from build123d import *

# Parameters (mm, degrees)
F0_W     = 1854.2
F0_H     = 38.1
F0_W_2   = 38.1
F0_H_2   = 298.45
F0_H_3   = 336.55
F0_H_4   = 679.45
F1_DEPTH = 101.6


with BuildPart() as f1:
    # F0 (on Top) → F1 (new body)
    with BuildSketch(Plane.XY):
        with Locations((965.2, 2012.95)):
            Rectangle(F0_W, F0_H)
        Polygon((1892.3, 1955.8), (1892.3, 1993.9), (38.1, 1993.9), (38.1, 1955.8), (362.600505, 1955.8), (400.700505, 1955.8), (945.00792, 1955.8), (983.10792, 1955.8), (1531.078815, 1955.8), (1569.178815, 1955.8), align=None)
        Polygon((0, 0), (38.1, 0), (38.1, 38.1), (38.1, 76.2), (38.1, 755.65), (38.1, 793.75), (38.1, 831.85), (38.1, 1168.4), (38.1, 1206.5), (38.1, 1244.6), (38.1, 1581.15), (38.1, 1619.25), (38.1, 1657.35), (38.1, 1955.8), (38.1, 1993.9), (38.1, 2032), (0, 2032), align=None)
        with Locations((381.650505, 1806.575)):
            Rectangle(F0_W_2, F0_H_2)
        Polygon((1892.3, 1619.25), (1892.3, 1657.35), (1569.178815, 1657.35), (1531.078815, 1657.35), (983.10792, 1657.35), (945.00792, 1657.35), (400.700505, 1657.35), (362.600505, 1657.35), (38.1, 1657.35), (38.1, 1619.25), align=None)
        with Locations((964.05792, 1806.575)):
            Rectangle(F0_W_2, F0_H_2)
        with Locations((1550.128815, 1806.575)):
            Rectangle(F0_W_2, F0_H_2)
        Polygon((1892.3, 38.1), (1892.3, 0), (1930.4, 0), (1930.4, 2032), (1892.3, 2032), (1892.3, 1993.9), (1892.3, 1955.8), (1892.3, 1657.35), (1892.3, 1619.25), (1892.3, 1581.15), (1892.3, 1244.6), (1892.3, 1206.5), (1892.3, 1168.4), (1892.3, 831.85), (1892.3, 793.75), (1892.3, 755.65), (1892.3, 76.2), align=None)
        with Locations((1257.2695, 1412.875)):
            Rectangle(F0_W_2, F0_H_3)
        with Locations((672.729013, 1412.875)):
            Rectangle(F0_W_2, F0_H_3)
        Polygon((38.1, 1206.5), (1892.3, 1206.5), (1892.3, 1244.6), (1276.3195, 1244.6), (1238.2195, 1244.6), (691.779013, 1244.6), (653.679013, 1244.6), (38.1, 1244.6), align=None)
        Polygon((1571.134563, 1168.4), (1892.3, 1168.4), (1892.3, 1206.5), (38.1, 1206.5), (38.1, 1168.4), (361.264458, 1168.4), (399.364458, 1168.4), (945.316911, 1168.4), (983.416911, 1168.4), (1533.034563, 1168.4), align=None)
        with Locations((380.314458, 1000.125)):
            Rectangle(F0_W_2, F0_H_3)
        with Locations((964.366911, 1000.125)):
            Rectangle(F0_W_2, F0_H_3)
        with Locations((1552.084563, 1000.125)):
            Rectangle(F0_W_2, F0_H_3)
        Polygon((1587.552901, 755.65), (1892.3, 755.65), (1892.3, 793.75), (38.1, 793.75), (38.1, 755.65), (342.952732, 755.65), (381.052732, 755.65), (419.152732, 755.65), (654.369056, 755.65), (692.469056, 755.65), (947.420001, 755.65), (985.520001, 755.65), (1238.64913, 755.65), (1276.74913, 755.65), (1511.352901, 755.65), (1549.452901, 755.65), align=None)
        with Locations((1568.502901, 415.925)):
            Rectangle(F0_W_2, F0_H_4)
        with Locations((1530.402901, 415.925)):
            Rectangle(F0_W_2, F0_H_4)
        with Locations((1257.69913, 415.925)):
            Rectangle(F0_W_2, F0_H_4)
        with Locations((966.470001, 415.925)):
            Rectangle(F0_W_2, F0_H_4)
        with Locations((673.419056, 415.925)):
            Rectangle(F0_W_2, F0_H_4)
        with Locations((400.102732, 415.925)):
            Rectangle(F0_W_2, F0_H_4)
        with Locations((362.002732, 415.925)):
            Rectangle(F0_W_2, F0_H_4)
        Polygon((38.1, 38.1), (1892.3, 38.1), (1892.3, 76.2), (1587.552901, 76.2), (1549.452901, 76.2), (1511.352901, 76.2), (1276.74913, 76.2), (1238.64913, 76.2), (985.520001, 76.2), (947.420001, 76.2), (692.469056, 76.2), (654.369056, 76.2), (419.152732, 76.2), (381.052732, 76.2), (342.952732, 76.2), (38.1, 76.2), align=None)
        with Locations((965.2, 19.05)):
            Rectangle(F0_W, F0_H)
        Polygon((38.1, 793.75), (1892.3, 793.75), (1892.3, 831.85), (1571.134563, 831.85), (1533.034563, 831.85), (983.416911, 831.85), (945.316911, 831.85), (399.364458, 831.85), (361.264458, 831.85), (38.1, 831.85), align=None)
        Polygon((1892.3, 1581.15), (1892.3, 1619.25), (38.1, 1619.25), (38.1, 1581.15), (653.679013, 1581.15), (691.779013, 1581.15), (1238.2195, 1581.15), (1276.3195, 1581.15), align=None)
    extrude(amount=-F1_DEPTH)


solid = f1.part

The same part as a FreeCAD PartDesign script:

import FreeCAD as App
import Part
import Sketcher
Q = App.Units.Quantity


def add_polygon(sketch, points):
    """Adds a closed chain of lines whose ends are joined by coincident constraints."""
    first, n = sketch.GeometryCount, len(points)
    for a, b in zip(points, points[1:] + points[:1]):
        sketch.addGeometry(Part.LineSegment(App.Vector(*a, 0), App.Vector(*b, 0)), False)
    for i in range(n):
        sketch.addConstraint(Sketcher.Constraint("Coincident", first + i, 2, first + (i + 1) % n, 1))

doc = App.newDocument("Part")
params = doc.addObject("Spreadsheet::Sheet", "Params")
for row, (alias, value) in enumerate([
    ("sketch1_width", "76 in"),
    ("sketch1_height", "80 in"),
    ("sketch1_height2", "11.75 in"),
    ("sketch1_height3", "26.75 in"),
    ("sketch1_height4", "13.25 in"),
    ("pad1_length", "4 in"),
], start=1):
    params.set(f"A{row}", alias)
    params.set(f"B{row}", "=" + value)
    params.setAlias(f"B{row}", alias)

body = doc.addObject("PartDesign::Body", "Body")

# Sketch on XY plane
sketch1 = body.newObject("Sketcher::SketchObject", "Sketch")
sketch1.AttachmentSupport = (doc.getObject("XY_Plane"), [""])
sketch1.MapMode = "FlatFace"
add_polygon(sketch1, [(0, 2032), (0, 0), (1930, 0), (1930, 2032)])  # lines 0-3
add_polygon(sketch1, [(38, 1956), (363, 1956), (363, 1657), (38, 1657)])  # lines 4-7
add_polygon(sketch1, [(401, 1657), (401, 1956), (945, 1956), (945, 1657)])  # lines 8-11
add_polygon(sketch1, [(983, 1956), (1531, 1956), (1531, 1657), (983, 1657)])  # lines 12-15
add_polygon(sketch1, [(1569, 1956), (1892, 1956), (1892, 1657), (1569, 1657)])  # lines 16-19
add_polygon(sketch1, [(38, 76), (38, 756), (343, 756), (343, 76)])  # lines 20-23
add_polygon(sketch1, [(419, 76), (419, 756), (654, 756), (654, 76)])  # lines 24-27
add_polygon(sketch1, [(692, 76), (692, 756), (947, 756), (947, 76)])  # lines 28-31
add_polygon(sketch1, [(986, 76), (986, 756), (1239, 756), (1239, 76)])  # lines 32-35
add_polygon(sketch1, [(1277, 76), (1277, 756), (1511, 756), (1511, 76)])  # lines 36-39
add_polygon(sketch1, [(1588, 76), (1588, 756), (1892, 756), (1892, 76)])  # lines 40-43
add_polygon(sketch1, [(38, 832), (38, 1168), (361, 1168), (361, 832)])  # lines 44-47
add_polygon(sketch1, [(399, 832), (399, 1168), (945, 1168), (945, 832)])  # lines 48-51
add_polygon(sketch1, [(983, 832), (983, 1168), (1533, 1168), (1533, 832)])  # lines 52-55
add_polygon(sketch1, [(1571, 832), (1571, 1168), (1892, 1168), (1892, 832)])  # lines 56-59
add_polygon(sketch1, [(38, 1245), (38, 1581), (654, 1581), (654, 1245)])  # lines 60-63
add_polygon(sketch1, [(1892, 1581), (1892, 1245), (1276, 1245), (1276, 1581)])  # lines 64-67
add_polygon(sketch1, [(1238, 1581), (1238, 1245), (692, 1245), (692, 1581)])  # lines 68-71
sketch1.addConstraint(Sketcher.Constraint("Vertical", 0))
sketch1.addConstraint(Sketcher.Constraint("Horizontal", 1))
sketch1.addConstraint(Sketcher.Constraint("Vertical", 2))
sketch1.addConstraint(Sketcher.Constraint("Horizontal", 3))
sketch1.addConstraint(Sketcher.Constraint("Horizontal", 4))
sketch1.addConstraint(Sketcher.Constraint("Vertical", 5))
sketch1.addConstraint(Sketcher.Constraint("Horizontal", 6))
sketch1.addConstraint(Sketcher.Constraint("Vertical", 7))
sketch1.addConstraint(Sketcher.Constraint("Vertical", 8))
sketch1.addConstraint(Sketcher.Constraint("Horizontal", 9))
sketch1.addConstraint(Sketcher.Constraint("Vertical", 10))
sketch1.addConstraint(Sketcher.Constraint("Horizontal", 11))
sketch1.addConstraint(Sketcher.Constraint("Horizontal", 12))
sketch1.addConstraint(Sketcher.Constraint("Vertical", 13))
sketch1.addConstraint(Sketcher.Constraint("Horizontal", 14))
sketch1.addConstraint(Sketcher.Constraint("Vertical", 15))
sketch1.addConstraint(Sketcher.Constraint("Horizontal", 16))
sketch1.addConstraint(Sketcher.Constraint("Vertical", 17))
sketch1.addConstraint(Sketcher.Constraint("Horizontal", 18))
sketch1.addConstraint(Sketcher.Constraint("Vertical", 19))
sketch1.addConstraint(Sketcher.Constraint("Vertical", 20))
sketch1.addConstraint(Sketcher.Constraint("Horizontal", 21))
sketch1.addConstraint(Sketcher.Constraint("Vertical", 22))
sketch1.addConstraint(Sketcher.Constraint("Horizontal", 23))
sketch1.addConstraint(Sketcher.Constraint("Vertical", 24))
sketch1.addConstraint(Sketcher.Constraint("Horizontal", 25))
sketch1.addConstraint(Sketcher.Constraint("Vertical", 26))
sketch1.addConstraint(Sketcher.Constraint("Horizontal", 27))
sketch1.addConstraint(Sketcher.Constraint("Vertical", 28))
sketch1.addConstraint(Sketcher.Constraint("Horizontal", 29))
sketch1.addConstraint(Sketcher.Constraint("Vertical", 30))
sketch1.addConstraint(Sketcher.Constraint("Horizontal", 31))
sketch1.addConstraint(Sketcher.Constraint("Vertical", 32))
sketch1.addConstraint(Sketcher.Constraint("Horizontal", 33))
sketch1.addConstraint(Sketcher.Constraint("Vertical", 34))
sketch1.addConstraint(Sketcher.Constraint("Horizontal", 35))
sketch1.addConstraint(Sketcher.Constraint("Vertical", 36))
sketch1.addConstraint(Sketcher.Constraint("Horizontal", 37))
sketch1.addConstraint(Sketcher.Constraint("Vertical", 38))
sketch1.addConstraint(Sketcher.Constraint("Horizontal", 39))
sketch1.addConstraint(Sketcher.Constraint("Vertical", 40))
sketch1.addConstraint(Sketcher.Constraint("Horizontal", 41))
sketch1.addConstraint(Sketcher.Constraint("Vertical", 42))
sketch1.addConstraint(Sketcher.Constraint("Horizontal", 43))
sketch1.addConstraint(Sketcher.Constraint("Vertical", 44))
sketch1.addConstraint(Sketcher.Constraint("Horizontal", 45))
sketch1.addConstraint(Sketcher.Constraint("Vertical", 46))
sketch1.addConstraint(Sketcher.Constraint("Horizontal", 47))
sketch1.addConstraint(Sketcher.Constraint("Vertical", 48))
sketch1.addConstraint(Sketcher.Constraint("Horizontal", 49))
sketch1.addConstraint(Sketcher.Constraint("Vertical", 50))
sketch1.addConstraint(Sketcher.Constraint("Horizontal", 51))
sketch1.addConstraint(Sketcher.Constraint("Vertical", 52))
sketch1.addConstraint(Sketcher.Constraint("Horizontal", 53))
sketch1.addConstraint(Sketcher.Constraint("Vertical", 54))
sketch1.addConstraint(Sketcher.Constraint("Horizontal", 55))
sketch1.addConstraint(Sketcher.Constraint("Vertical", 56))
sketch1.addConstraint(Sketcher.Constraint("Horizontal", 57))
sketch1.addConstraint(Sketcher.Constraint("Vertical", 58))
sketch1.addConstraint(Sketcher.Constraint("Horizontal", 59))
sketch1.addConstraint(Sketcher.Constraint("Vertical", 60))
sketch1.addConstraint(Sketcher.Constraint("Horizontal", 61))
sketch1.addConstraint(Sketcher.Constraint("Vertical", 62))
sketch1.addConstraint(Sketcher.Constraint("Horizontal", 63))
sketch1.addConstraint(Sketcher.Constraint("Vertical", 64))
sketch1.addConstraint(Sketcher.Constraint("Horizontal", 65))
sketch1.addConstraint(Sketcher.Constraint("Vertical", 66))
sketch1.addConstraint(Sketcher.Constraint("Horizontal", 67))
sketch1.addConstraint(Sketcher.Constraint("Vertical", 68))
sketch1.addConstraint(Sketcher.Constraint("Horizontal", 69))
sketch1.addConstraint(Sketcher.Constraint("Vertical", 70))
sketch1.addConstraint(Sketcher.Constraint("Horizontal", 71))
sketch1.addConstraint(Sketcher.Constraint("Coincident", 0, 2, -1, 1))
sketch1.addConstraint(Sketcher.Constraint("Horizontal", 7, 2, 8, 2))
sketch1.addConstraint(Sketcher.Constraint("Horizontal", 6, 2, 10, 2))
sketch1.addConstraint(Sketcher.Constraint("Horizontal", 9, 2, 12, 2))
sketch1.addConstraint(Sketcher.Constraint("Horizontal", 11, 2, 13, 2))
sketch1.addConstraint(Sketcher.Constraint("Horizontal", 15, 2, 16, 2))
sketch1.addConstraint(Sketcher.Constraint("Horizontal", 14, 2, 17, 2))
sketch1.addConstraint(Sketcher.Constraint("Horizontal", 21, 2, 24, 2))
sketch1.addConstraint(Sketcher.Constraint("Horizontal", 23, 2, 26, 2))
sketch1.addConstraint(Sketcher.Constraint("Horizontal", 25, 2, 28, 2))
sketch1.addConstraint(Sketcher.Constraint("Horizontal", 27, 2, 30, 2))
sketch1.addConstraint(Sketcher.Constraint("Horizontal", 29, 2, 32, 2))
sketch1.addConstraint(Sketcher.Constraint("Horizontal", 31, 2, 34, 2))
sketch1.addConstraint(Sketcher.Constraint("Horizontal", 33, 2, 36, 2))
sketch1.addConstraint(Sketcher.Constraint("Horizontal", 35, 2, 38, 2))
sketch1.addConstraint(Sketcher.Constraint("Horizontal", 37, 2, 40, 2))
sketch1.addConstraint(Sketcher.Constraint("Horizontal", 39, 2, 42, 2))
sketch1.addConstraint(Sketcher.Constraint("Horizontal", 45, 2, 48, 2))
sketch1.addConstraint(Sketcher.Constraint("Horizontal", 47, 2, 50, 2))
sketch1.addConstraint(Sketcher.Constraint("Horizontal", 49, 2, 52, 2))
sketch1.addConstraint(Sketcher.Constraint("Horizontal", 51, 2, 54, 2))
sketch1.addConstraint(Sketcher.Constraint("Horizontal", 53, 2, 56, 2))
sketch1.addConstraint(Sketcher.Constraint("Horizontal", 55, 2, 58, 2))
sketch1.addConstraint(Sketcher.Constraint("Horizontal", 63, 2, 64, 2))
sketch1.addConstraint(Sketcher.Constraint("Horizontal", 61, 2, 66, 2))
sketch1.addConstraint(Sketcher.Constraint("Horizontal", 65, 2, 68, 2))
sketch1.addConstraint(Sketcher.Constraint("Horizontal", 67, 2, 70, 2))
sketch1.addConstraint(Sketcher.Constraint("Vertical", 7, 2, 20, 2))
sketch1.addConstraint(Sketcher.Constraint("Vertical", 17, 2, 41, 2))
sketch1.addConstraint(Sketcher.Constraint("Vertical", 23, 2, 44, 2))
sketch1.addConstraint(Sketcher.Constraint("Vertical", 42, 2, 57, 2))
sketch1.addConstraint(Sketcher.Constraint("Vertical", 47, 2, 60, 2))
sketch1.addConstraint(Sketcher.Constraint("Vertical", 58, 2, 64, 2))
sketch1.addConstraint(Sketcher.Constraint("Equal", 58, 60))
sketch1.addConstraint(Sketcher.Constraint("DistanceX", 1, 1, 1, 2, Q("76 in")))
sketch1.addConstraint(Sketcher.Constraint("DistanceY", 0, 2, 0, 1, Q("80 in")))
sketch1.addConstraint(Sketcher.Constraint("DistanceY", -1, 1, 4, 2, Q("77 in")))
sketch1.addConstraint(Sketcher.Constraint("DistanceY", -1, 1, 22, 2, Q("3 in")))
sketch1.addConstraint(Sketcher.Constraint("DistanceY", -1, 1, 44, 2, Q("46 in")))
sketch1.addConstraint(Sketcher.Constraint("DistanceY", -1, 1, 62, 2, Q("49 in")))
sketch1.addConstraint(Sketcher.Constraint("DistanceY", 5, 2, 5, 1, Q("11.75 in")))
sketch1.addConstraint(Sketcher.Constraint("DistanceY", 20, 1, 20, 2, Q("26.75 in")))
sketch1.addConstraint(Sketcher.Constraint("DistanceY", 44, 1, 44, 2, Q("13.25 in")))
sketch1.addConstraint(Sketcher.Constraint("DistanceX", -1, 1, 6, 2, Q("1.5 in")))
sketch1.addConstraint(Sketcher.Constraint("DistanceX", -1, 1, 16, 2, Q("74.5 in")))
sketch1.addConstraint(Sketcher.Constraint("DistanceX", -1, 1, 29, 2, Q("37.3 in")))
sketch1.addConstraint(Sketcher.Constraint("DistanceX", -1, 1, 32, 2, Q("38.8 in")))
sketch1.addConstraint(Sketcher.Constraint("DistanceX", 41, 1, 41, 2, Q("304.747099 mm")))
sketch1.addConstraint(Sketcher.Constraint("DistanceX", 65, 2, 65, 1, Q("615.9805 mm")))
sketch1.addConstraint(Sketcher.Constraint("DistanceX", 21, 1, 21, 2, Q("304.852732 mm")))
sketch1.addConstraint(Sketcher.Constraint("DistanceX", 33, 1, 33, 2, Q("253.129129 mm")))
sketch1.addConstraint(Sketcher.Constraint("DistanceX", 37, 1, 37, 2, Q("234.603771 mm")))
sketch1.addConstraint(Sketcher.Constraint("DistanceX", 53, 1, 53, 2, Q("549.617652 mm")))
sketch1.addConstraint(Sketcher.Constraint("DistanceX", -1, 1, 37, 2, Q("1511.352901 mm")))
sketch1.addConstraint(Sketcher.Constraint("DistanceX", -1, 1, 68, 2, Q("1238.2195 mm")))
sketch1.addConstraint(Sketcher.Constraint("DistanceX", 4, 1, 4, 2, Q("324.500505 mm")))
sketch1.addConstraint(Sketcher.Constraint("DistanceX", 9, 1, 9, 2, Q("544.307415 mm")))
sketch1.addConstraint(Sketcher.Constraint("DistanceX", 12, 1, 12, 2, Q("547.970895 mm")))
sketch1.addConstraint(Sketcher.Constraint("DistanceX", 16, 1, 16, 2, Q("323.121185 mm")))
sketch1.addConstraint(Sketcher.Constraint("DistanceX", 25, 1, 25, 2, Q("235.216324 mm")))
sketch1.addConstraint(Sketcher.Constraint("DistanceX", 29, 1, 29, 2, Q("254.950945 mm")))
sketch1.addConstraint(Sketcher.Constraint("DistanceX", 45, 1, 45, 2, Q("323.164458 mm")))
sketch1.addConstraint(Sketcher.Constraint("DistanceX", 49, 1, 49, 2, Q("545.952453 mm")))
sketch1.addConstraint(Sketcher.Constraint("DistanceX", 57, 1, 57, 2, Q("321.165437 mm")))
sketch1.addConstraint(Sketcher.Constraint("DistanceX", 61, 1, 61, 2, Q("615.579013 mm")))
sketch1.addConstraint(Sketcher.Constraint("DistanceX", 69, 2, 69, 1, Q("546.440487 mm")))
sketch1.addConstraint(Sketcher.Constraint("DistanceX", -1, 1, 9, 2, Q("945.00792 mm")))
sketch1.addConstraint(Sketcher.Constraint("DistanceX", -1, 1, 14, 2, Q("983.10792 mm")))
sketch1.addConstraint(Sketcher.Constraint("DistanceX", -1, 1, 24, 2, Q("419.152732 mm")))
sketch1.addConstraint(Sketcher.Constraint("DistanceX", -1, 1, 48, 2, Q("399.364458 mm")))
sketch1.addConstraint(Sketcher.Constraint("DistanceX", -1, 1, 52, 2, Q("983.416911 mm")))
sketch1.setExpression("Constraints[178]", "Params.sketch1_width")
sketch1.setExpression("Constraints[179]", "Params.sketch1_height")
sketch1.setExpression("Constraints[184]", "Params.sketch1_height2")
sketch1.setExpression("Constraints[185]", "Params.sketch1_height3")
sketch1.setExpression("Constraints[186]", "Params.sketch1_height4")
pad1 = body.newObject("PartDesign::Pad", "Pad")
pad1.Profile = sketch1
pad1.setExpression("Length", "Params.pad1_length")
pad1.Reversed = True

doc.recompute()
